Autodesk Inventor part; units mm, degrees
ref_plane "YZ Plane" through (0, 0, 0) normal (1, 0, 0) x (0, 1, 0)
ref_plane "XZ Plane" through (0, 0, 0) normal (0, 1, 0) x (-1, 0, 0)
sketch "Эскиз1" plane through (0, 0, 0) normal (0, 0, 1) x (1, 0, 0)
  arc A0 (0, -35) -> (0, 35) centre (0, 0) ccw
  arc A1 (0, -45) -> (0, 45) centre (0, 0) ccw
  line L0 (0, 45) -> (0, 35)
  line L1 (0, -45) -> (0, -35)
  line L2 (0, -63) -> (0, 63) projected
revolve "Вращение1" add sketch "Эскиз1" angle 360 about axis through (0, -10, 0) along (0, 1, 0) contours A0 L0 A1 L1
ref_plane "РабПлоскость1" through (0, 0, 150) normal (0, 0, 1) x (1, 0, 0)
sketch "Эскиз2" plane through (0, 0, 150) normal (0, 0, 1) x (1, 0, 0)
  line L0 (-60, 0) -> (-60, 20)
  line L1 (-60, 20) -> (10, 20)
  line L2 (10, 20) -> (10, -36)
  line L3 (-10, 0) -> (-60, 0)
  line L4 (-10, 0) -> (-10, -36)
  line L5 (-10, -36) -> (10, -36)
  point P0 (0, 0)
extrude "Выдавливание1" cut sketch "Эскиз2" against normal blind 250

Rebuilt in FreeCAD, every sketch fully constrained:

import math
import FreeCAD as App
import Part
import Sketcher
from FreeCAD import Vector


def add_polygon(sketch, points):
    """Adds a closed chain of lines whose ends are joined by coincident constraints."""
    first, n = sketch.GeometryCount, len(points)
    for a, b in zip(points, points[1:] + points[:1]):
        sketch.addGeometry(Part.LineSegment(App.Vector(*a, 0), App.Vector(*b, 0)), False)
    for i in range(n):
        sketch.addConstraint(Sketcher.Constraint("Coincident", first + i, 2, first + (i + 1) % n, 1))

doc = App.newDocument("Part")
body = doc.addObject("PartDesign::Body", "Body")

sketch1 = body.newObject("Sketcher::SketchObject", "Sketch")
sketch1.AttachmentSupport = (doc.getObject("XY_Plane"), [""])
sketch1.MapMode = "FlatFace"
sketch1.addGeometry([
    Part.ArcOfCircle(Part.Circle(Vector(0, 0, 0), Vector(0, 0, 1), 35), math.radians(-90), math.radians(90)),
    Part.LineSegment(Vector(0, -35, 0), Vector(0, -45, 0)),
    Part.ArcOfCircle(Part.Circle(Vector(0, 0, 0), Vector(0, 0, 1), 45), math.radians(-90), math.radians(90)),
    Part.LineSegment(Vector(0, 45, 0), Vector(0, 35, 0)),
], False)
sketch1.addConstraint([
    Sketcher.Constraint("Coincident", 0, 1, 1, 1),
    Sketcher.Constraint("Coincident", 1, 2, 2, 1),
    Sketcher.Constraint("Coincident", 2, 2, 3, 1),
    Sketcher.Constraint("Coincident", 3, 2, 0, 2),
    Sketcher.Constraint("Vertical", 1),
    Sketcher.Constraint("Vertical", 3),
    Sketcher.Constraint("Coincident", 0, 3, -1, 1),
    Sketcher.Constraint("Coincident", 2, 3, -1, 1),
    Sketcher.Constraint("PointOnObject", 0, 1, -2),
    Sketcher.Constraint("PointOnObject", 2, 2, -2),
    Sketcher.Constraint("Radius", 0, 35.0),
    Sketcher.Constraint("Radius", 2, 45.0),
])
revolution = body.newObject("PartDesign::Revolution", "Revolution")
revolution.Profile = sketch1
revolution.ReferenceAxis = (sketch1, ["V_Axis"])
revolution.Angle = 360

sketch2 = body.newObject("Sketcher::SketchObject", "Sketch001")
sketch2.AttachmentSupport = (doc.getObject("XY_Plane"), [""])
sketch2.MapMode = "FlatFace"
sketch2.AttachmentOffset = App.Placement(Vector(0, 0, 150), App.Rotation())
add_polygon(sketch2, [(-60, 20), (-60, 0), (-10, 0), (-10, -36), (10, -36), (10, 20)])
sketch2.addConstraint([
    Sketcher.Constraint("Vertical", 0),
    Sketcher.Constraint("Horizontal", 1),
    Sketcher.Constraint("Vertical", 2),
    Sketcher.Constraint("Horizontal", 3),
    Sketcher.Constraint("Vertical", 4),
    Sketcher.Constraint("Horizontal", 5),
    Sketcher.Constraint("PointOnObject", 0, 2, -1),
    Sketcher.Constraint("Equal", 3, 0),
    Sketcher.Constraint("DistanceX", 1, 1, 1, 2, 50.0),
    Sketcher.Constraint("DistanceX", 3, 1, 3, 2, 20.0),
    Sketcher.Constraint("DistanceY", 2, 2, 2, 1, 36.0),
    Sketcher.Constraint("DistanceX", 0, 2, -1, 1, 60.0),
])
pocket1 = body.newObject("PartDesign::Pocket", "Pocket")
pocket1.Profile = sketch2
pocket1.Length = 250

doc.recompute()
